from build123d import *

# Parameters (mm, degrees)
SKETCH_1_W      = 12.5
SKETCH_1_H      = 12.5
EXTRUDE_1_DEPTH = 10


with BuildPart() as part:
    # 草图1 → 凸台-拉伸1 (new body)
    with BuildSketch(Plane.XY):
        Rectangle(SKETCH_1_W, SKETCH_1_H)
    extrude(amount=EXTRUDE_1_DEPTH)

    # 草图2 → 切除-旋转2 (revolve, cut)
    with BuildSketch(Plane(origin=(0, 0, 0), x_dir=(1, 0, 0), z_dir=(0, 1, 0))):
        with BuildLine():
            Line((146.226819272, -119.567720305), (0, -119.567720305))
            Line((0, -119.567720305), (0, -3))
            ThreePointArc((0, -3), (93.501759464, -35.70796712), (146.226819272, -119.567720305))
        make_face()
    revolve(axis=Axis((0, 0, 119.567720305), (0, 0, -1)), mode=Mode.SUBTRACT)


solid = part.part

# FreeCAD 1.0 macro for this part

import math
import FreeCAD as App
import Part
import Sketcher

V = App.Vector

doc = App.newDocument("Part")
body = doc.addObject("PartDesign::Body", "Body")

# Sketch on XY plane
sketch1 = doc.addObject("Sketcher::SketchObject", "Sketch")
body.addObject(sketch1)
sketch1.AttachmentSupport = (doc.XY_Plane, [""])
sketch1.MapMode = "FlatFace"
sketch1.addGeometry([
    Part.LineSegment(V(-6.25, 6.25, 0), V(-6.25, -6.25, 0)),
    Part.LineSegment(V(-6.25, -6.25, 0), V(6.25, -6.25, 0)),
    Part.LineSegment(V(6.25, -6.25, 0), V(6.25, 6.25, 0)),
    Part.LineSegment(V(6.25, 6.25, 0), V(-6.25, 6.25, 0)),
], False)
sketch1.addConstraint([
    Sketcher.Constraint("Coincident", 0, 2, 1, 1),
    Sketcher.Constraint("Coincident", 1, 2, 2, 1),
    Sketcher.Constraint("Coincident", 2, 2, 3, 1),
    Sketcher.Constraint("Coincident", 3, 2, 0, 1),
    Sketcher.Constraint("Vertical", 0),
    Sketcher.Constraint("Horizontal", 1),
    Sketcher.Constraint("Vertical", 2),
    Sketcher.Constraint("Horizontal", 3),
    Sketcher.Constraint("Symmetric", 0, 2, 2, 2, -1, 1),
    Sketcher.Constraint("Equal", 3, 0),
    Sketcher.Constraint("DistanceX", 1, 1, 1, 2, 12.5),
])
pad1 = doc.addObject("PartDesign::Pad", "Pad")
body.addObject(pad1)
pad1.Profile = sketch1
pad1.Length = 10

# Sketch on XZ plane
sketch2 = doc.addObject("Sketcher::SketchObject", "Sketch001")
body.addObject(sketch2)
sketch2.AttachmentSupport = (doc.XZ_Plane, [""])
sketch2.MapMode = "FlatFace"
sketch2.addGeometry([
    Part.LineSegment(V(0, 119.56772, 0), V(146.226819, 119.56772, 0)),
    Part.ArcOfCircle(Part.Circle(V(0, 153, 0), V(0, 0, 1), 150), math.radians(-90), math.radians(-12.878355)),
    Part.LineSegment(V(0, 3, 0), V(0, 119.56772, 0)),
], False)
sketch2.addConstraint([
    Sketcher.Constraint("Coincident", 0, 2, 1, 2),
    Sketcher.Constraint("Coincident", 1, 1, 2, 1),
    Sketcher.Constraint("Coincident", 2, 2, 0, 1),
    Sketcher.Constraint("Horizontal", 0),
    Sketcher.Constraint("Vertical", 2),
    Sketcher.Constraint("PointOnObject", 1, 3, -2),
    Sketcher.Constraint("PointOnObject", 1, 1, -2),
    Sketcher.Constraint("Radius", 1, 150.0),
    Sketcher.Constraint("DistanceY", -1, 1, 1, 3, 153.0),
    Sketcher.Constraint("DistanceX", 0, 1, 0, 2, 146.226819),
])
groove = doc.addObject("PartDesign::Groove", "Groove")
body.addObject(groove)
groove.Profile = sketch2
groove.ReferenceAxis = (sketch2, ["V_Axis"])
groove.Angle = 360

doc.recompute()
